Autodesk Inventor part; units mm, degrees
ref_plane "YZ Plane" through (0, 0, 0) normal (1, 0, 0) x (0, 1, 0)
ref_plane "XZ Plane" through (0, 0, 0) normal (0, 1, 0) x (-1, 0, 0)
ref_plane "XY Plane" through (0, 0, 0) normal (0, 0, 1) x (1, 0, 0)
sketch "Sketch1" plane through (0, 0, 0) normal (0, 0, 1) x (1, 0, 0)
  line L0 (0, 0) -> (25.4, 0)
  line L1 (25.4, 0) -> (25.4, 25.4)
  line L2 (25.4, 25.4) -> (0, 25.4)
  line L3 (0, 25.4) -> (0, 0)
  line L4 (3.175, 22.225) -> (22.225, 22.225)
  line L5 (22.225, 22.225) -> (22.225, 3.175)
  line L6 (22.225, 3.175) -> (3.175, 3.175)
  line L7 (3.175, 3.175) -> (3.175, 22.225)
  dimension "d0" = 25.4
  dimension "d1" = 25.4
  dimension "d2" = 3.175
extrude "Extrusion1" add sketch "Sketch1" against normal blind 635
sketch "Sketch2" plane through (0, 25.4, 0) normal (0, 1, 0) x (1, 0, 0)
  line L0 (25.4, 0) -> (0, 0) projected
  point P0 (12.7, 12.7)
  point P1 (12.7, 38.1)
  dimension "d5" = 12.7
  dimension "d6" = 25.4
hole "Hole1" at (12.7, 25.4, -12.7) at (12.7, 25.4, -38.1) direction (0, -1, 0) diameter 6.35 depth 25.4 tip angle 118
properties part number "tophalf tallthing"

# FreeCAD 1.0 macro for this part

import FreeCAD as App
import Part
import Sketcher
Q = App.Units.Quantity

doc = App.newDocument("Part")
body = doc.addObject("PartDesign::Body", "Body")

# Sketch on XY plane
sketch1 = body.newObject("Sketcher::SketchObject", "Sketch")
sketch1.AttachmentSupport = (doc.getObject("XY_Plane"), [""])
sketch1.MapMode = "FlatFace"
sketch1.addGeometry([
    Part.LineSegment(App.Vector(0, 25, 0), App.Vector(0, 0, 0)),  # 0
    Part.LineSegment(App.Vector(0, 0, 0), App.Vector(25, 0, 0)),  # 1
    Part.LineSegment(App.Vector(25, 0, 0), App.Vector(25, 25, 0)),  # 2
    Part.LineSegment(App.Vector(25, 25, 0), App.Vector(0, 25, 0)),  # 3
    Part.LineSegment(App.Vector(3, 3, 0), App.Vector(3, 22, 0)),  # 4
    Part.LineSegment(App.Vector(3, 22, 0), App.Vector(22, 22, 0)),  # 5
    Part.LineSegment(App.Vector(22, 22, 0), App.Vector(22, 3, 0)),  # 6
    Part.LineSegment(App.Vector(22, 3, 0), App.Vector(3, 3, 0)),  # 7
], False)
sketch1.addConstraint([
    Sketcher.Constraint("Coincident", 0, 2, 1, 1),
    Sketcher.Constraint("Coincident", 1, 2, 2, 1),
    Sketcher.Constraint("Coincident", 2, 2, 3, 1),
    Sketcher.Constraint("Coincident", 3, 2, 0, 1),
    Sketcher.Constraint("Coincident", 4, 2, 5, 1),
    Sketcher.Constraint("Coincident", 5, 2, 6, 1),
    Sketcher.Constraint("Coincident", 6, 2, 7, 1),
    Sketcher.Constraint("Coincident", 7, 2, 4, 1),
    Sketcher.Constraint("Vertical", 0),
    Sketcher.Constraint("Horizontal", 1),
    Sketcher.Constraint("Vertical", 2),
    Sketcher.Constraint("Horizontal", 3),
    Sketcher.Constraint("Vertical", 4),
    Sketcher.Constraint("Horizontal", 5),
    Sketcher.Constraint("Vertical", 6),
    Sketcher.Constraint("Horizontal", 7),
    Sketcher.Constraint("Coincident", 0, 2, -1, 1),
    Sketcher.Constraint("Equal", 3, 0),
    Sketcher.Constraint("Equal", 7, 4),
    Sketcher.Constraint("DistanceX", 1, 1, 1, 2, Q("1 in")),
    Sketcher.Constraint("DistanceX", -1, 1, 4, 2, Q("0.125 in")),
    Sketcher.Constraint("DistanceY", -1, 1, 6, 2, Q("0.125 in")),
    Sketcher.Constraint("DistanceY", 4, 2, 3, 2, Q("0.125 in")),
])
pad1 = body.newObject("PartDesign::Pad", "Pad")
pad1.Profile = sketch1
pad1.Length = Q("25 in")
pad1.Reversed = True

# Sketch on XZ plane
sketch2 = body.newObject("Sketcher::SketchObject", "Sketch001")
sketch2.AttachmentSupport = (doc.getObject("XZ_Plane"), [""])
sketch2.MapMode = "FlatFace"
sketch2.AttachmentOffset = App.Placement(App.Vector(0, 0, -1 * 25.4), App.Rotation())
sketch2.addGeometry([
    Part.Circle(App.Vector(12.7, -12.7, 0), App.Vector(0, 0, 1), 3.2),
    Part.Circle(App.Vector(12.7, -38.1, 0), App.Vector(0, 0, 1), 3.2),
], False)
sketch2.addConstraint([
    Sketcher.Constraint("Equal", 0, 1),
    Sketcher.Constraint("Vertical", 0, 3, 1, 3),
    Sketcher.Constraint("Diameter", 0, Q("0.25 in")),
    Sketcher.Constraint("DistanceY", 1, 3, 0, 3, Q("1 in")),
    Sketcher.Constraint("DistanceX", -1, 1, 0, 3, Q("0.5 in")),
    Sketcher.Constraint("DistanceY", 0, 3, -1, 1, Q("0.5 in")),
])
doc.recompute()
hole = body.newObject("PartDesign::Hole", "Hole")
hole.Profile = sketch2
hole.ThreadType = "None"
hole.Diameter = Q("0.25 in")
hole.DepthType = "Dimension"
hole.Depth = Q("1 in")
hole.DrillPoint = "Angled"
hole.DrillPointAngle = 118
hole.Reversed = True

doc.recompute()
